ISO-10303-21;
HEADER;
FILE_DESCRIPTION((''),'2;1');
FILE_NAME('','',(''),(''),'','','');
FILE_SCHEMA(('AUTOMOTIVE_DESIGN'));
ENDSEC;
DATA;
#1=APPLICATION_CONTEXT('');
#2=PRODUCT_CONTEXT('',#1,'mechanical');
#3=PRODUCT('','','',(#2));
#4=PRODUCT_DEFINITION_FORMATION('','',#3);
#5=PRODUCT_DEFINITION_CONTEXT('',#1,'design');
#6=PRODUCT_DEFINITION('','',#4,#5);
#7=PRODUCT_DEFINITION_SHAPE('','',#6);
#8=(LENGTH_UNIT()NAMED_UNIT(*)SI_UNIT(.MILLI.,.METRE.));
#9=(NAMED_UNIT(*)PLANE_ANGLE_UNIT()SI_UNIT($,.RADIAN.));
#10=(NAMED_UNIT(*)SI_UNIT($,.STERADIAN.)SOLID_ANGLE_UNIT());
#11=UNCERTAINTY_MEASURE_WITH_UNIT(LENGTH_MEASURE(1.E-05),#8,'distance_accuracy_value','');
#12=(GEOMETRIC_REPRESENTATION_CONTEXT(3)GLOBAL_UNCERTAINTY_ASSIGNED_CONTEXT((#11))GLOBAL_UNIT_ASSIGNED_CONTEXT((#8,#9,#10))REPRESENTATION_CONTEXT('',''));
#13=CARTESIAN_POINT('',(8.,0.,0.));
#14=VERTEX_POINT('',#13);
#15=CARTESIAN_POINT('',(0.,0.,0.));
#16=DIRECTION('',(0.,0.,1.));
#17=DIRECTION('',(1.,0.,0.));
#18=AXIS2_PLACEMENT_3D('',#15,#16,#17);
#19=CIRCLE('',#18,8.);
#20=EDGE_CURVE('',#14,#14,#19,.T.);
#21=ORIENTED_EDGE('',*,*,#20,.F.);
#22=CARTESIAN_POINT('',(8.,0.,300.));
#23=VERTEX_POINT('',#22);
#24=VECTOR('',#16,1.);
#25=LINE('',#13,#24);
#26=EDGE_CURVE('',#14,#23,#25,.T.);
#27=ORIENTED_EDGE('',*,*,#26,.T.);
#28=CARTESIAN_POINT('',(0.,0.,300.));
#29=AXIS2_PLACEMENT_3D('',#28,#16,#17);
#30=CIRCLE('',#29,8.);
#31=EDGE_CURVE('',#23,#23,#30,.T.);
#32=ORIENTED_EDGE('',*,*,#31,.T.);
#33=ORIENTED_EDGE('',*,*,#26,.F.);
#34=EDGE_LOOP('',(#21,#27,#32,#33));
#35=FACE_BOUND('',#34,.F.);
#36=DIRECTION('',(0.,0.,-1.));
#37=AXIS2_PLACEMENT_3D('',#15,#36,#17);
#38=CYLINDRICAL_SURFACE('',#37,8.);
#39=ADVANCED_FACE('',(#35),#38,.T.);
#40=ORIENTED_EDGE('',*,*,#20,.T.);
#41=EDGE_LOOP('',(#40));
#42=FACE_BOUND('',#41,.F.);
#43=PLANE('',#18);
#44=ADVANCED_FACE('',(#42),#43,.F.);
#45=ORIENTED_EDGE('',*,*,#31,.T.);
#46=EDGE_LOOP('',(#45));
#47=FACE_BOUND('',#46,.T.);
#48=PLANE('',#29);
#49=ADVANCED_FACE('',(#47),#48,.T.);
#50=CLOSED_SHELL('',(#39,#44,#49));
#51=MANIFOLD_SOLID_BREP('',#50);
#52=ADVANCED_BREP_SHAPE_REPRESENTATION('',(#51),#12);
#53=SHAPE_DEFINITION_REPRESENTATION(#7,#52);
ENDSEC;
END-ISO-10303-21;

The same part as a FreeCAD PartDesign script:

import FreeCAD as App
import Part
import Sketcher

V = App.Vector
Q = App.Units.Quantity

doc = App.newDocument("Part")
body = doc.addObject("PartDesign::Body", "Body")

# Sketch on XY plane
sketch1 = body.newObject("Sketcher::SketchObject", "Sketch")
sketch1.AttachmentSupport = (doc.getObject("XY_Plane"), [""])
sketch1.MapMode = "FlatFace"
sketch1.addGeometry(Part.Circle(V(0, 0, 0), V(0, 0, 1), 8), False)
sketch1.addConstraint([
    Sketcher.Constraint("Coincident", 0, 3, -1, 1),
    Sketcher.Constraint("Diameter", 0, Q("16 mm")),
])
pad1 = body.newObject("PartDesign::Pad", "Pad")
pad1.Profile = sketch1
pad1.Length = 300

doc.recompute()
